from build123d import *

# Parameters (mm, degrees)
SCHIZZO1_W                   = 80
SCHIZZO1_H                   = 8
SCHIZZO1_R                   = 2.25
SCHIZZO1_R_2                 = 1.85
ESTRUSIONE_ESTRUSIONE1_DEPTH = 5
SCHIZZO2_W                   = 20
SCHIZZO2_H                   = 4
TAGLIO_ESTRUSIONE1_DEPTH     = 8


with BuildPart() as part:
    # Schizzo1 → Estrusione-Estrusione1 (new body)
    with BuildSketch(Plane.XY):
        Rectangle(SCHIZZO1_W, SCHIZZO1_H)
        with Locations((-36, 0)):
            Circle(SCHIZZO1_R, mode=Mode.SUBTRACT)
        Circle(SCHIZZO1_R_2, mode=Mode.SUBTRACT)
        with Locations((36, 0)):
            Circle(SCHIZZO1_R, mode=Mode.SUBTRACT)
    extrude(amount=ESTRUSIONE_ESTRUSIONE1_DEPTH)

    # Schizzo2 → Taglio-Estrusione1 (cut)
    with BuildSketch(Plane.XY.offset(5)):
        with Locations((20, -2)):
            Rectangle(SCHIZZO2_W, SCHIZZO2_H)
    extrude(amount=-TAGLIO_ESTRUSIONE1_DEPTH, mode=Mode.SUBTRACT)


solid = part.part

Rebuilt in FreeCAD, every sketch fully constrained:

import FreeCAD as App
import Part
import Sketcher


def add_polygon(sketch, points):
    """Adds a closed chain of lines whose ends are joined by coincident constraints."""
    first, n = sketch.GeometryCount, len(points)
    for a, b in zip(points, points[1:] + points[:1]):
        sketch.addGeometry(Part.LineSegment(App.Vector(*a, 0), App.Vector(*b, 0)), False)
    for i in range(n):
        sketch.addConstraint(Sketcher.Constraint("Coincident", first + i, 2, first + (i + 1) % n, 1))

doc = App.newDocument("Part")
body = doc.addObject("PartDesign::Body", "Body")

# Sketch on XY plane
sketch1 = body.newObject("Sketcher::SketchObject", "Sketch")
sketch1.AttachmentSupport = (doc.getObject("XY_Plane"), [""])
sketch1.MapMode = "FlatFace"
add_polygon(sketch1, [(-40, 4), (-40, -4), (40, -4), (40, 4)])  # lines 0-3
sketch1.addGeometry(Part.Circle(App.Vector(-36, 0, 0), App.Vector(0, 0, 1), 2.2), False)  # 4
sketch1.addGeometry(Part.Circle(App.Vector(0, 0, 0), App.Vector(0, 0, 1), 1.9), False)  # 5
sketch1.addGeometry(Part.Circle(App.Vector(36, 0, 0), App.Vector(0, 0, 1), 2.2), False)  # 6
sketch1.addConstraint([
    Sketcher.Constraint("Vertical", 0),
    Sketcher.Constraint("Horizontal", 1),
    Sketcher.Constraint("Vertical", 2),
    Sketcher.Constraint("Horizontal", 3),
    Sketcher.Constraint("Coincident", 5, 3, -1, 1),
    Sketcher.Constraint("Equal", 4, 6),
    Sketcher.Constraint("Symmetric", 4, 3, 6, 3, -1, 1),
    Sketcher.Constraint("Symmetric", 0, 2, 2, 2, -1, 1),
    Sketcher.Constraint("PointOnObject", 4, 3, -1),
    Sketcher.Constraint("Diameter", 4, 4.5),
    Sketcher.Constraint("Diameter", 5, 3.7),
    Sketcher.Constraint("DistanceX", 1, 1, 1, 2, 80.0),
    Sketcher.Constraint("DistanceY", 0, 2, 0, 1, 8.0),
    Sketcher.Constraint("DistanceX", 4, 3, -1, 1, 36.0),
])
pad1 = body.newObject("PartDesign::Pad", "Pad")
pad1.Profile = sketch1
pad1.Length = 5

# Sketch on XY plane
sketch2 = body.newObject("Sketcher::SketchObject", "Sketch001")
sketch2.AttachmentSupport = (doc.getObject("XY_Plane"), [""])
sketch2.MapMode = "FlatFace"
sketch2.AttachmentOffset = App.Placement(App.Vector(0, 0, 5), App.Rotation())
add_polygon(sketch2, [(10, 0), (10, -4), (30, -4), (30, 0)])  # lines 0-3
sketch2.addConstraint([
    Sketcher.Constraint("Vertical", 0),
    Sketcher.Constraint("Horizontal", 1),
    Sketcher.Constraint("Vertical", 2),
    Sketcher.Constraint("Horizontal", 3),
    Sketcher.Constraint("PointOnObject", 2, 2, -1),
    Sketcher.Constraint("DistanceX", 1, 1, 1, 2, 20.0),
    Sketcher.Constraint("DistanceY", 0, 2, 0, 1, 4.0),
    Sketcher.Constraint("DistanceX", -1, 1, 0, 2, 10.0),
])
pocket1 = body.newObject("PartDesign::Pocket", "Pocket")
pocket1.Profile = sketch2
pocket1.Length = 8

doc.recompute()
